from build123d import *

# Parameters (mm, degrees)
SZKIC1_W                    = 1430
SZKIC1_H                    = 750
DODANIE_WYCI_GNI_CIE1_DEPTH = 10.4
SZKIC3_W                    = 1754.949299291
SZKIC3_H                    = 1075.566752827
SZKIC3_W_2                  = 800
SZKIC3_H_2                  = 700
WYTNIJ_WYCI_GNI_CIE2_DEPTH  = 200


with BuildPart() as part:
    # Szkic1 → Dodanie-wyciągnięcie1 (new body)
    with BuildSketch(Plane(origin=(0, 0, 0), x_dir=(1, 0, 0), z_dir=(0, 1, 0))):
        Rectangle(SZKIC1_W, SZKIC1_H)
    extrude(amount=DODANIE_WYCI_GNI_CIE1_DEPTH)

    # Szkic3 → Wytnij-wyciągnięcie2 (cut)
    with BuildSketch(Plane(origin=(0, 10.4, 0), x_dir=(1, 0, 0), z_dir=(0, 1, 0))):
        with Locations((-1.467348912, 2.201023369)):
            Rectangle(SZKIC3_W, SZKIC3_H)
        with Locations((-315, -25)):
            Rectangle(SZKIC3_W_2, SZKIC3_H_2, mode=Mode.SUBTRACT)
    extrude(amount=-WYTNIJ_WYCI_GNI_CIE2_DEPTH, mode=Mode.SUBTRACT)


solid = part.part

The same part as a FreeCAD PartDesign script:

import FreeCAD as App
import Part
import Sketcher

V = App.Vector
Q = App.Units.Quantity

doc = App.newDocument("Part")
body = doc.addObject("PartDesign::Body", "Body")

# Sketch on XZ plane
sketch1 = body.newObject("Sketcher::SketchObject", "Sketch")
sketch1.AttachmentSupport = (doc.getObject("XZ_Plane"), [""])
sketch1.MapMode = "FlatFace"
sketch1.addGeometry([
    Part.LineSegment(V(-715, -375, 0), V(-715, 375, 0)),
    Part.LineSegment(V(-715, 375, 0), V(715, 375, 0)),
    Part.LineSegment(V(715, 375, 0), V(715, -375, 0)),
    Part.LineSegment(V(715, -375, 0), V(-715, -375, 0)),
], False)
sketch1.addConstraint([
    Sketcher.Constraint("Coincident", 0, 2, 1, 1),
    Sketcher.Constraint("Coincident", 1, 2, 2, 1),
    Sketcher.Constraint("Coincident", 2, 2, 3, 1),
    Sketcher.Constraint("Coincident", 3, 2, 0, 1),
    Sketcher.Constraint("Vertical", 0),
    Sketcher.Constraint("Horizontal", 1),
    Sketcher.Constraint("Vertical", 2),
    Sketcher.Constraint("Horizontal", 3),
    Sketcher.Constraint("Symmetric", 0, 2, 2, 2, -1, 1),
    Sketcher.Constraint("DistanceX", 1, 1, 1, 2, Q("1430 mm")),
    Sketcher.Constraint("DistanceY", 0, 1, 0, 2, Q("750 mm")),
])
pad1 = body.newObject("PartDesign::Pad", "Pad")
pad1.Profile = sketch1
pad1.Length = 10.4
pad1.Reversed = True

# Sketch on XZ plane
sketch2 = body.newObject("Sketcher::SketchObject", "Sketch001")
sketch2.AttachmentSupport = (doc.getObject("XZ_Plane"), [""])
sketch2.MapMode = "FlatFace"
sketch2.AttachmentOffset = App.Placement(V(0, 0, -10.4), App.Rotation())
sketch2.addGeometry([
    Part.LineSegment(V(-879, -540, 0), V(-879, 536, 0)),  # 0
    Part.LineSegment(V(-879, 536, 0), V(876, 536, 0)),  # 1
    Part.LineSegment(V(876, 536, 0), V(876, -540, 0)),  # 2
    Part.LineSegment(V(876, -540, 0), V(-879, -540, 0)),  # 3
    Part.LineSegment(V(85, 375, 0), V(-715, 375, 0)),  # 4
    Part.LineSegment(V(-715, 375, 0), V(-715, -325, 0)),  # 5
    Part.LineSegment(V(-715, -325, 0), V(85, -325, 0)),  # 6
    Part.LineSegment(V(85, -325, 0), V(85, 375, 0)),  # 7
], False)
sketch2.addConstraint([
    Sketcher.Constraint("Coincident", 0, 2, 1, 1),
    Sketcher.Constraint("Coincident", 1, 2, 2, 1),
    Sketcher.Constraint("Coincident", 2, 2, 3, 1),
    Sketcher.Constraint("Coincident", 3, 2, 0, 1),
    Sketcher.Constraint("Coincident", 4, 2, 5, 1),
    Sketcher.Constraint("Coincident", 5, 2, 6, 1),
    Sketcher.Constraint("Coincident", 6, 2, 7, 1),
    Sketcher.Constraint("Coincident", 7, 2, 4, 1),
    Sketcher.Constraint("Vertical", 0),
    Sketcher.Constraint("Horizontal", 1),
    Sketcher.Constraint("Vertical", 2),
    Sketcher.Constraint("Horizontal", 3),
    Sketcher.Constraint("Horizontal", 4),
    Sketcher.Constraint("Vertical", 5),
    Sketcher.Constraint("Horizontal", 6),
    Sketcher.Constraint("Vertical", 7),
    Sketcher.Constraint("DistanceX", 4, 2, 4, 1, Q("800 mm")),
    Sketcher.Constraint("DistanceY", 5, 2, 5, 1, Q("700 mm")),
    Sketcher.Constraint("DistanceX", 4, 2, -1, 1, Q("715 mm")),
    Sketcher.Constraint("DistanceY", -1, 1, 4, 2, Q("375 mm")),
    Sketcher.Constraint("DistanceX", 1, 1, 1, 2, Q("1754.949299 mm")),
    Sketcher.Constraint("DistanceX", 0, 2, -1, 1, Q("878.941999 mm")),
    Sketcher.Constraint("DistanceY", 2, 2, -1, 1, Q("539.9844 mm")),
    Sketcher.Constraint("DistanceY", 0, 1, 0, 2, Q("1075.566753 mm")),
])
pocket1 = body.newObject("PartDesign::Pocket", "Pocket")
pocket1.Profile = sketch2
pocket1.Length = 200
pocket1.Reversed = True

doc.recompute()
